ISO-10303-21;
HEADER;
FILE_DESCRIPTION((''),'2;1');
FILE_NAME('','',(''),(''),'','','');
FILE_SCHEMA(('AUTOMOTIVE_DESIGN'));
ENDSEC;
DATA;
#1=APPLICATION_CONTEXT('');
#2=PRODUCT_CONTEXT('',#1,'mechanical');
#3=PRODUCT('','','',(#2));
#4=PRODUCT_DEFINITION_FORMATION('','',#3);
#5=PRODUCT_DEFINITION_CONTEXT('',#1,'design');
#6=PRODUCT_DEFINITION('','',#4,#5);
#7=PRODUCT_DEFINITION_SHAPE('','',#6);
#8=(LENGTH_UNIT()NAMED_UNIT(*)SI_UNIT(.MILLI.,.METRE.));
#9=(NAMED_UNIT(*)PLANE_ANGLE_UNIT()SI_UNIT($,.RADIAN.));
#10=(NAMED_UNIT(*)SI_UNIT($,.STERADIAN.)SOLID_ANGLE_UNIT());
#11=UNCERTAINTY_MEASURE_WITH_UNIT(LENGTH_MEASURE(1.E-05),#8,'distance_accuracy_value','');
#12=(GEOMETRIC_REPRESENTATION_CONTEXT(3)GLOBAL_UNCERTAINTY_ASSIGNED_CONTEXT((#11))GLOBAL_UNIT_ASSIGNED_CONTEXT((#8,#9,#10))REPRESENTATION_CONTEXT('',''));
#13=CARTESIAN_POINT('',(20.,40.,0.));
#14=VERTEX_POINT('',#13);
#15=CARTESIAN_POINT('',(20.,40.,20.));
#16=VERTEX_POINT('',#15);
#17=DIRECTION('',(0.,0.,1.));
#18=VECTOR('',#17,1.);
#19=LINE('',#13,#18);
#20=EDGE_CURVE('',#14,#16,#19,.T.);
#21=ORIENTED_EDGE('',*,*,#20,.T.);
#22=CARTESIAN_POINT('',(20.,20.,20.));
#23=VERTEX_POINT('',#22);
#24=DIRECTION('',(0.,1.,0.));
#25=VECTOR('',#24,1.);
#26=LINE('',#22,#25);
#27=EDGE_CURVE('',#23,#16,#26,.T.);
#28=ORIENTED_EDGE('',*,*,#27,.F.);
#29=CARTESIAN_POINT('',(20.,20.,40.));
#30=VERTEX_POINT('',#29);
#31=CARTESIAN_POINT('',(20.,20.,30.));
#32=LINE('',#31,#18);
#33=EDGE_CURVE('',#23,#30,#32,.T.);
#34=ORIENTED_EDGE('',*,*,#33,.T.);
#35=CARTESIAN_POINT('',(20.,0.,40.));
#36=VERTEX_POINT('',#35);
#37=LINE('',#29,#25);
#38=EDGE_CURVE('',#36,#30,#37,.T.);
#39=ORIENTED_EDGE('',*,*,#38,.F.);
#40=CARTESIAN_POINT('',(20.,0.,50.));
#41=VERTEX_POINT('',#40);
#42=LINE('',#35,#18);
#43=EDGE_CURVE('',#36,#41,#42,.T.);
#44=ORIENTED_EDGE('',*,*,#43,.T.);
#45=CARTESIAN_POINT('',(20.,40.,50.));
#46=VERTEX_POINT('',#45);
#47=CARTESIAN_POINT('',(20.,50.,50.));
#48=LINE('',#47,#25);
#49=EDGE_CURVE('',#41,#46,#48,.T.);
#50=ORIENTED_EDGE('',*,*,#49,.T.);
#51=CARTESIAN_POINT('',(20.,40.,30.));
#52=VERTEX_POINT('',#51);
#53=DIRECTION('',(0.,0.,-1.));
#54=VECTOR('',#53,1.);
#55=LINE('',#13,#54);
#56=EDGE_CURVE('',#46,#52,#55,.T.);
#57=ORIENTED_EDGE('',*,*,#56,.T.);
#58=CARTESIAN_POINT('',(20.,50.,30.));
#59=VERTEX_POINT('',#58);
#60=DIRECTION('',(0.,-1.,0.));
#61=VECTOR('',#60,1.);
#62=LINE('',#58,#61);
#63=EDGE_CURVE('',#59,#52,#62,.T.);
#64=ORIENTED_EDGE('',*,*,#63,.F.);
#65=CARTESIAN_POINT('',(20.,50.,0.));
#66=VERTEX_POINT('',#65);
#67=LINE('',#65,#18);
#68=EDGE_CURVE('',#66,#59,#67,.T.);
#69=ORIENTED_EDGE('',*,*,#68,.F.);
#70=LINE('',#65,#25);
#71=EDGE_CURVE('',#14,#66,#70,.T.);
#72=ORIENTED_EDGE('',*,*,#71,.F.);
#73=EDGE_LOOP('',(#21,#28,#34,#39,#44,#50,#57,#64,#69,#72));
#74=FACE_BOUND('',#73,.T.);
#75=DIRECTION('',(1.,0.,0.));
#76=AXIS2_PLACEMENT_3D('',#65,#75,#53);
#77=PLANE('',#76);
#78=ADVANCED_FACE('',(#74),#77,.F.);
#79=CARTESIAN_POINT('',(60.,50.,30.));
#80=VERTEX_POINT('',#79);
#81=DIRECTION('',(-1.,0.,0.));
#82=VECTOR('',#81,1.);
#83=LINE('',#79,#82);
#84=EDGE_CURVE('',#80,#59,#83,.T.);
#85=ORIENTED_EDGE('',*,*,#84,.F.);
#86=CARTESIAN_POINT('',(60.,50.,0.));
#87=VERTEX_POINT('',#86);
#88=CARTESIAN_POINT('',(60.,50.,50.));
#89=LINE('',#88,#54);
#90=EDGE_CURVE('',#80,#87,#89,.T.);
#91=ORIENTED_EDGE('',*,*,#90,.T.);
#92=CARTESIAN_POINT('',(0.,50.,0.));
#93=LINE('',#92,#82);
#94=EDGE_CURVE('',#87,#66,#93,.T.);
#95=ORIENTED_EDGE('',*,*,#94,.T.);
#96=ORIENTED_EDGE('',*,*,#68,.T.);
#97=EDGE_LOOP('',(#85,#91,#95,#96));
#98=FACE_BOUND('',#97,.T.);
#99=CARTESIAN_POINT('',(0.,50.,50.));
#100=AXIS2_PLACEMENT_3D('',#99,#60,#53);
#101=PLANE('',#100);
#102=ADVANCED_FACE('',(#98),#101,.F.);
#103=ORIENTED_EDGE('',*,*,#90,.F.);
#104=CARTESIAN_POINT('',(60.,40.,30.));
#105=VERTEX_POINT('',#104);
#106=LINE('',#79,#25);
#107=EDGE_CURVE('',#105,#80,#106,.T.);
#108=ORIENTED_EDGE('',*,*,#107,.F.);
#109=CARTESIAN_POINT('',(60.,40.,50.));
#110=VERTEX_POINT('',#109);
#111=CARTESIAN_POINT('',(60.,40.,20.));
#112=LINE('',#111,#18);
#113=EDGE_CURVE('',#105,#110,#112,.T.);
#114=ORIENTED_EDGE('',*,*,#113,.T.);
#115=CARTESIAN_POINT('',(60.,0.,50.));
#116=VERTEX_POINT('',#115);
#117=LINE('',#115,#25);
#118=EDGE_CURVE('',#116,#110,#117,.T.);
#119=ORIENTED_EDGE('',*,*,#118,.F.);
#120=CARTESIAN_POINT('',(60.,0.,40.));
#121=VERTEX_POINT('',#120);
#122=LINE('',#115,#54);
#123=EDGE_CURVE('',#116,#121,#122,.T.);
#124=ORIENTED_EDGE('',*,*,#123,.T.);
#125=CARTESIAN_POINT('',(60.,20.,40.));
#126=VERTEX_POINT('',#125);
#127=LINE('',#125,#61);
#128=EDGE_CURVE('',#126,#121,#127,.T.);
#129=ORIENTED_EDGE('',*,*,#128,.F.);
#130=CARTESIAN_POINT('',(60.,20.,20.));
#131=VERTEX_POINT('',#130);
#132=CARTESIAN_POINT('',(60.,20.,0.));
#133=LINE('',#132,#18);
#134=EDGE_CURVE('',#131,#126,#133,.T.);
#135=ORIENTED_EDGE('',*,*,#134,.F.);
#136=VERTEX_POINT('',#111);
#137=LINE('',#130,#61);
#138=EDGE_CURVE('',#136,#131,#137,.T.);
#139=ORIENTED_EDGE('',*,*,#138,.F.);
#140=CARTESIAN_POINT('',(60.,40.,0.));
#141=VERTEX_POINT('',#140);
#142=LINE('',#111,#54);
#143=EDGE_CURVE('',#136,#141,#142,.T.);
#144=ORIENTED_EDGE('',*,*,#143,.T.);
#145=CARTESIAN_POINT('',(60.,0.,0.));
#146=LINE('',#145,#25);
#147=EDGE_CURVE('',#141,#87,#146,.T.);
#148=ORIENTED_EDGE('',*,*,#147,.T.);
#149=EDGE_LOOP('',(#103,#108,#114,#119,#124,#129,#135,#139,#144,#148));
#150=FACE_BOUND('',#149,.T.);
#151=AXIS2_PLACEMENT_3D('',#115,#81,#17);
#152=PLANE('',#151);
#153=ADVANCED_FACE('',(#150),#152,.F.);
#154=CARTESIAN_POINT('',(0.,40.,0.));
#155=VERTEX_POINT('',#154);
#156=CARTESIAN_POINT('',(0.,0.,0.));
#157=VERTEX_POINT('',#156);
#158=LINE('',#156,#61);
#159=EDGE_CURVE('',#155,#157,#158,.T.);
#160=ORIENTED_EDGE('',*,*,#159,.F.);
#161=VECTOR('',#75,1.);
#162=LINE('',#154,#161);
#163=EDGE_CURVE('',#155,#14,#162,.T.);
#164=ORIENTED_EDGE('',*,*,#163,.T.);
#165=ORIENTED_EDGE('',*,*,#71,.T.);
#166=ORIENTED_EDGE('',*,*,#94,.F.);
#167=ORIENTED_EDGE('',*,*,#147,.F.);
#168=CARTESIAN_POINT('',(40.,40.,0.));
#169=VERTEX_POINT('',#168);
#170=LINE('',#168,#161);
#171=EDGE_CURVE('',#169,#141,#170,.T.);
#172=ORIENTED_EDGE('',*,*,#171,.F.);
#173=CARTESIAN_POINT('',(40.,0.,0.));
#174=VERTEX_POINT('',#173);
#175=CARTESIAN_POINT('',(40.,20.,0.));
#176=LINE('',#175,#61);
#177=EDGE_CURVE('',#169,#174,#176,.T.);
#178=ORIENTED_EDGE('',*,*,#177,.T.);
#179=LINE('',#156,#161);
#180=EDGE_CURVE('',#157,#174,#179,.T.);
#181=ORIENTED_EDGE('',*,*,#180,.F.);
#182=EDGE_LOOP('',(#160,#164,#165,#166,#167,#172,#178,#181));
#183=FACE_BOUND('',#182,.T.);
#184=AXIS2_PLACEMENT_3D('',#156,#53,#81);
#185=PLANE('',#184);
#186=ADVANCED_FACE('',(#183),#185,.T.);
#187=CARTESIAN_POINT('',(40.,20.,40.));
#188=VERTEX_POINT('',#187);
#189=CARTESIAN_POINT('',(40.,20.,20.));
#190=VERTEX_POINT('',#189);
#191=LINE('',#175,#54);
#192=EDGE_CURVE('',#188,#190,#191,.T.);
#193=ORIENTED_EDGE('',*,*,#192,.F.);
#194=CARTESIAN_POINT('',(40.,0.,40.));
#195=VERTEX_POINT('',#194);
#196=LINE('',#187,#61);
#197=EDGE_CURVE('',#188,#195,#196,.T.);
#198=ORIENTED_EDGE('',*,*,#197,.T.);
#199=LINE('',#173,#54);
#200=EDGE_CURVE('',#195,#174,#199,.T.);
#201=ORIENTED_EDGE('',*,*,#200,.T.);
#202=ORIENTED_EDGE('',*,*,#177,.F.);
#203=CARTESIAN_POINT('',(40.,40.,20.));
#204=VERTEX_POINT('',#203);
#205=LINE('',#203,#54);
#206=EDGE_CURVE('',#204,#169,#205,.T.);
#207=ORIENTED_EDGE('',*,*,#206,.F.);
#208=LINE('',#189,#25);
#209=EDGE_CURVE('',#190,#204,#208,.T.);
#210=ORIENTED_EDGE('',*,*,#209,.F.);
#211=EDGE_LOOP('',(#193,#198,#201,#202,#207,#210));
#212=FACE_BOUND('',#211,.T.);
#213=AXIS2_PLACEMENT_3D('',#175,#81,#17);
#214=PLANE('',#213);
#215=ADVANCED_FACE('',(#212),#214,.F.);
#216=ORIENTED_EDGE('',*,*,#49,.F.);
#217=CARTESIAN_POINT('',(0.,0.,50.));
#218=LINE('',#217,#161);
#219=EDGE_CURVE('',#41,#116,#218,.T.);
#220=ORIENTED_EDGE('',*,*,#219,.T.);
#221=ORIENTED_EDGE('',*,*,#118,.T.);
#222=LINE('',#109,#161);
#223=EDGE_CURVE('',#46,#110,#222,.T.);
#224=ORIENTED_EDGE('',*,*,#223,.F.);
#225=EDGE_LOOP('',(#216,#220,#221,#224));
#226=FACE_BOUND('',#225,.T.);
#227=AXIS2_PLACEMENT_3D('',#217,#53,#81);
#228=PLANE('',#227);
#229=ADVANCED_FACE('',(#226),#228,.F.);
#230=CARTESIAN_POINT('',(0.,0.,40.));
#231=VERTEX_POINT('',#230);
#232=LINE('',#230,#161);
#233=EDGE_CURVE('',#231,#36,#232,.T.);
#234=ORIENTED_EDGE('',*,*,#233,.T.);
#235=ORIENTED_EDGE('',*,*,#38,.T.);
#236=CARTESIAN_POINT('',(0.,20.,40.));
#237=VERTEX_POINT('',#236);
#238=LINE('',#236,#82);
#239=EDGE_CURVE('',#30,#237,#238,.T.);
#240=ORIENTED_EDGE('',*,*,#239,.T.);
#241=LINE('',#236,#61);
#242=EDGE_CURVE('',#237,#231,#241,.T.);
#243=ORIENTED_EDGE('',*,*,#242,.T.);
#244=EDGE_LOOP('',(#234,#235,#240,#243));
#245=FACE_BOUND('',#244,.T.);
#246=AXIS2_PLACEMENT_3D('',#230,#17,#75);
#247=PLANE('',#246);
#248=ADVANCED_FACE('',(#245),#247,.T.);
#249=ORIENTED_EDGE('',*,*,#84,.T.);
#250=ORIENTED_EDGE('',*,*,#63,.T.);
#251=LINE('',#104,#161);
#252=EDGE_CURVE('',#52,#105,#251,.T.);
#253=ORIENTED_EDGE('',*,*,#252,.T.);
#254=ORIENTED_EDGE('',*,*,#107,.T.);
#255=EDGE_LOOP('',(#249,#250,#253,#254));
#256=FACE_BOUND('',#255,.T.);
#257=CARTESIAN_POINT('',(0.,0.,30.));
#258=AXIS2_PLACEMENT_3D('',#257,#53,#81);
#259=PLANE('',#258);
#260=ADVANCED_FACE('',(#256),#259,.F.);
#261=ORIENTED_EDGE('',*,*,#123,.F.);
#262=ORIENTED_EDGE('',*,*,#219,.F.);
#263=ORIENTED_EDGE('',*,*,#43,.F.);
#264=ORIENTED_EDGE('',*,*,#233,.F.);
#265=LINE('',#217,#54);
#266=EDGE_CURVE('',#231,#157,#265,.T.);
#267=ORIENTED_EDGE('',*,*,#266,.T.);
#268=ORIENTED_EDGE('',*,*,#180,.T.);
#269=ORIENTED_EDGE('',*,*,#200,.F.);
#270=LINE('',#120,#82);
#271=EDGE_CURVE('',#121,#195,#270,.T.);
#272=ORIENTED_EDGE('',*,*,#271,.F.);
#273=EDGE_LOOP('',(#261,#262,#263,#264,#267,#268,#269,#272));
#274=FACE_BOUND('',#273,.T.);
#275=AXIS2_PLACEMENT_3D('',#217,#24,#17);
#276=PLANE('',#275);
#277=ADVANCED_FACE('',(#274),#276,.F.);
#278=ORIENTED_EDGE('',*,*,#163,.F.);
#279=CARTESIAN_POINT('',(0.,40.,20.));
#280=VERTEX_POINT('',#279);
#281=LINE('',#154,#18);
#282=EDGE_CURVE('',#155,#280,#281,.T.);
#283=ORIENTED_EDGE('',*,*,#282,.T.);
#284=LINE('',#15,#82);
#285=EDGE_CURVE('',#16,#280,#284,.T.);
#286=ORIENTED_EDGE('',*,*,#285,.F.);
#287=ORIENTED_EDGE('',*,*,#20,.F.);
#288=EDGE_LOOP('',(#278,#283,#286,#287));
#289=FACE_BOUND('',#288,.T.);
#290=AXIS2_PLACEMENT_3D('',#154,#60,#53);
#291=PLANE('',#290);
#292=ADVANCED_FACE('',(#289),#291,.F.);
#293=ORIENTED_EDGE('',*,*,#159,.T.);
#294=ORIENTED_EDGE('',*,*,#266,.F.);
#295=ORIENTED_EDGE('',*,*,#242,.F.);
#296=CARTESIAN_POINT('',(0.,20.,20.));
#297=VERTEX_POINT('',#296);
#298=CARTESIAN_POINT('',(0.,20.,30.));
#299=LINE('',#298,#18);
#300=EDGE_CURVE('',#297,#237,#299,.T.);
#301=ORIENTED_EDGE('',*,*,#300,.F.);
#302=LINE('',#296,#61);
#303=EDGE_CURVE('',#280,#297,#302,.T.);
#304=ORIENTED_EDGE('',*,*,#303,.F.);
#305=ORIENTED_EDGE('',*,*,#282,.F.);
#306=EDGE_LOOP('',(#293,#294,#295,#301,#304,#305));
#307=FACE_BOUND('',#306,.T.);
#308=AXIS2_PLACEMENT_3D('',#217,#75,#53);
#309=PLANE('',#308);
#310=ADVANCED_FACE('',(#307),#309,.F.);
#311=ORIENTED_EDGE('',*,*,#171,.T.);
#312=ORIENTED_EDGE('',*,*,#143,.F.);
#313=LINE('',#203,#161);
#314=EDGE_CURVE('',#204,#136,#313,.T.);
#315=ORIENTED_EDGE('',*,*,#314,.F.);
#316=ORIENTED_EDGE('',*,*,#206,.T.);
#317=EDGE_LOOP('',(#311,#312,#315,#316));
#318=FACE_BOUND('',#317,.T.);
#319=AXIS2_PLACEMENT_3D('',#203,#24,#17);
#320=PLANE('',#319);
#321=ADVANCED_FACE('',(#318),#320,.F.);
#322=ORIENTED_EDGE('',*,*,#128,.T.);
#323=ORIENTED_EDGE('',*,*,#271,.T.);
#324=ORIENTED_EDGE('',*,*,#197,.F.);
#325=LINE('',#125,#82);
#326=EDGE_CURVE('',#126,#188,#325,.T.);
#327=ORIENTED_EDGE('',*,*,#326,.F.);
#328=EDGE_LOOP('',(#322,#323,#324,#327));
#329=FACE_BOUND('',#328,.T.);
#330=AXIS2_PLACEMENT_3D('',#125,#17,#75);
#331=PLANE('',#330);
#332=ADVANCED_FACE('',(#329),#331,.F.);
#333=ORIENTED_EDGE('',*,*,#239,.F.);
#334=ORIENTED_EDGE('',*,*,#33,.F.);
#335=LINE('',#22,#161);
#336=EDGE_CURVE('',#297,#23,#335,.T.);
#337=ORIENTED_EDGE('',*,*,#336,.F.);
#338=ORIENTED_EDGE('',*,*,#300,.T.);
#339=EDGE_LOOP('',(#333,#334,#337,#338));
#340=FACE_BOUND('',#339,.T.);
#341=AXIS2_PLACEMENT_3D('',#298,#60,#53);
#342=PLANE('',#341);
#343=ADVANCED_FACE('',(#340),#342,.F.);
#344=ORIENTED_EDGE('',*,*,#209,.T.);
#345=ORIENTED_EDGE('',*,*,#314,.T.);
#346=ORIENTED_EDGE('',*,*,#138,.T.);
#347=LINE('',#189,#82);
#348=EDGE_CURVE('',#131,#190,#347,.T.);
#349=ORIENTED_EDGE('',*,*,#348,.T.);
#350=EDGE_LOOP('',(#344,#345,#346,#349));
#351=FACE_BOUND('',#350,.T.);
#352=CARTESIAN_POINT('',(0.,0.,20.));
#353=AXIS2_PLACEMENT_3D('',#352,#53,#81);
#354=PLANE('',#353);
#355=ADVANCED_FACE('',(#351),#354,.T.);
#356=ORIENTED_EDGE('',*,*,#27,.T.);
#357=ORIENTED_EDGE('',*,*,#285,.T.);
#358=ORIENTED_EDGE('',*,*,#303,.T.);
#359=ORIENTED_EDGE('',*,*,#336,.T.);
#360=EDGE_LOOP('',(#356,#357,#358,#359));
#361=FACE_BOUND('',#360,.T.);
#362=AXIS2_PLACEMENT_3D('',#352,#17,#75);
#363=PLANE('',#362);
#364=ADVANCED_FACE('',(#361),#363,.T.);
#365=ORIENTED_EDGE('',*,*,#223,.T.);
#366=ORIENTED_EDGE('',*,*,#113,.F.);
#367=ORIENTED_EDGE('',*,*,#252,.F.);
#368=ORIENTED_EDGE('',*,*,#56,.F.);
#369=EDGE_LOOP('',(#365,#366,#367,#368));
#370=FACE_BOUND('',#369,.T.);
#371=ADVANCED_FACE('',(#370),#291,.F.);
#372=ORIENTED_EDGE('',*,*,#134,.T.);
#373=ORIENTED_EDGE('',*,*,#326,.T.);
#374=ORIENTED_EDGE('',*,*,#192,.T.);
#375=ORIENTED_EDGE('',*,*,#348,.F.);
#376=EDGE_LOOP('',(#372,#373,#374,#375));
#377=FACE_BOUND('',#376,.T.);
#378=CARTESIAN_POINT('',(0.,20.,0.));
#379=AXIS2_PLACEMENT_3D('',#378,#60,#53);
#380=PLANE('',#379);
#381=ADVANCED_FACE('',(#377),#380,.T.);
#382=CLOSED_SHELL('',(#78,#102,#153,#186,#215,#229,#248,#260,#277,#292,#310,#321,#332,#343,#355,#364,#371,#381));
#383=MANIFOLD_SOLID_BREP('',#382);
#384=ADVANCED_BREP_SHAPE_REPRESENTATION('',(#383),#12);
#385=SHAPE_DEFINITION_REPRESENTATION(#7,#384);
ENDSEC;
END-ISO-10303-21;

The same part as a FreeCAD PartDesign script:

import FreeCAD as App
import Part
import Sketcher


def add_polygon(sketch, points):
    """Adds a closed chain of lines whose ends are joined by coincident constraints."""
    first, n = sketch.GeometryCount, len(points)
    for a, b in zip(points, points[1:] + points[:1]):
        sketch.addGeometry(Part.LineSegment(App.Vector(*a, 0), App.Vector(*b, 0)), False)
    for i in range(n):
        sketch.addConstraint(Sketcher.Constraint("Coincident", first + i, 2, first + (i + 1) % n, 1))

doc = App.newDocument("Part")
body = doc.addObject("PartDesign::Body", "Body")

sketch1 = doc.addObject("Sketcher::SketchObject", "Sketch")
body.addObject(sketch1)
sketch1.AttachmentSupport = (doc.XY_Plane, [""])
sketch1.MapMode = "FlatFace"
add_polygon(sketch1, [(0, 50), (0, 0), (60, 0), (60, 50)])
sketch1.addConstraint(Sketcher.Constraint("Vertical", 0))
sketch1.addConstraint(Sketcher.Constraint("Horizontal", 1))
sketch1.addConstraint(Sketcher.Constraint("Vertical", 2))
sketch1.addConstraint(Sketcher.Constraint("Horizontal", 3))
sketch1.addConstraint(Sketcher.Constraint("Coincident", 0, 2, -1, 1))
sketch1.addConstraint(Sketcher.Constraint("DistanceX", 1, 1, 1, 2, 60.0))
sketch1.addConstraint(Sketcher.Constraint("DistanceY", 0, 2, 0, 1, 50.0))
pad1 = doc.addObject("PartDesign::Pad", "Pad")
body.addObject(pad1)
pad1.Profile = sketch1
pad1.Length = 50

sketch2 = doc.addObject("Sketcher::SketchObject", "Sketch001")
body.addObject(sketch2)
sketch2.AttachmentSupport = (doc.XY_Plane, [""])
sketch2.MapMode = "FlatFace"
sketch2.AttachmentOffset = App.Placement(App.Vector(0, 0, 50), App.Rotation())
add_polygon(sketch2, [(0, 50), (0, 40), (20, 40), (20, 50)])
sketch2.addConstraint(Sketcher.Constraint("Vertical", 0))
sketch2.addConstraint(Sketcher.Constraint("Horizontal", 1))
sketch2.addConstraint(Sketcher.Constraint("Vertical", 2))
sketch2.addConstraint(Sketcher.Constraint("Horizontal", 3))
sketch2.addConstraint(Sketcher.Constraint("PointOnObject", 0, 2, -2))
sketch2.addConstraint(Sketcher.Constraint("DistanceX", 1, 1, 1, 2, 20.0))
sketch2.addConstraint(Sketcher.Constraint("DistanceY", 0, 2, 0, 1, 10.0))
sketch2.addConstraint(Sketcher.Constraint("DistanceY", -1, 1, 0, 2, 40.0))
pocket1 = doc.addObject("PartDesign::Pocket", "Pocket")
body.addObject(pocket1)
pocket1.Profile = sketch2
pocket1.Length = 50

sketch3 = doc.addObject("Sketcher::SketchObject", "Sketch002")
body.addObject(sketch3)
sketch3.AttachmentSupport = (doc.XY_Plane, [""])
sketch3.MapMode = "FlatFace"
sketch3.AttachmentOffset = App.Placement(App.Vector(0, 0, 50), App.Rotation())
add_polygon(sketch3, [(0, 40), (0, 20), (20, 20), (20, 40)])
sketch3.addConstraint(Sketcher.Constraint("Vertical", 0))
sketch3.addConstraint(Sketcher.Constraint("Horizontal", 1))
sketch3.addConstraint(Sketcher.Constraint("Vertical", 2))
sketch3.addConstraint(Sketcher.Constraint("Horizontal", 3))
sketch3.addConstraint(Sketcher.Constraint("PointOnObject", 0, 2, -2))
sketch3.addConstraint(Sketcher.Constraint("Equal", 3, 0))
sketch3.addConstraint(Sketcher.Constraint("DistanceX", 1, 1, 1, 2, 20.0))
sketch3.addConstraint(Sketcher.Constraint("DistanceY", -1, 1, 0, 2, 20.0))
pocket2 = doc.addObject("PartDesign::Pocket", "Pocket001")
body.addObject(pocket2)
pocket2.Profile = sketch3
pocket2.Length = 20

sketch4 = doc.addObject("Sketcher::SketchObject", "Sketch003")
body.addObject(sketch4)
sketch4.AttachmentSupport = (doc.XY_Plane, [""])
sketch4.MapMode = "FlatFace"
sketch4.AttachmentOffset = App.Placement(App.Vector(0, 0, 50), App.Rotation())
add_polygon(sketch4, [(20, 50), (20, 40), (60, 40), (60, 50)])
sketch4.addConstraint(Sketcher.Constraint("Vertical", 0))
sketch4.addConstraint(Sketcher.Constraint("Horizontal", 1))
sketch4.addConstraint(Sketcher.Constraint("Vertical", 2))
sketch4.addConstraint(Sketcher.Constraint("Horizontal", 3))
sketch4.addConstraint(Sketcher.Constraint("DistanceX", 1, 1, 1, 2, 40.0))
sketch4.addConstraint(Sketcher.Constraint("DistanceY", 0, 2, 0, 1, 10.0))
sketch4.addConstraint(Sketcher.Constraint("DistanceX", -1, 1, 0, 2, 20.0))
sketch4.addConstraint(Sketcher.Constraint("DistanceY", -1, 1, 0, 2, 40.0))
pocket3 = doc.addObject("PartDesign::Pocket", "Pocket002")
body.addObject(pocket3)
pocket3.Profile = sketch4
pocket3.Length = 30

sketch5 = doc.addObject("Sketcher::SketchObject", "Sketch004")
body.addObject(sketch5)
sketch5.AttachmentSupport = (doc.XY_Plane, [""])
sketch5.MapMode = "FlatFace"
sketch5.AttachmentOffset = App.Placement(App.Vector(0, 0, 30), App.Rotation())
add_polygon(sketch5, [(0, 40), (0, 20), (20, 20), (20, 40)])
sketch5.addConstraint(Sketcher.Constraint("Vertical", 0))
sketch5.addConstraint(Sketcher.Constraint("Horizontal", 1))
sketch5.addConstraint(Sketcher.Constraint("Vertical", 2))
sketch5.addConstraint(Sketcher.Constraint("Horizontal", 3))
sketch5.addConstraint(Sketcher.Constraint("PointOnObject", 0, 2, -2))
sketch5.addConstraint(Sketcher.Constraint("Equal", 3, 0))
sketch5.addConstraint(Sketcher.Constraint("DistanceX", 1, 1, 1, 2, 20.0))
sketch5.addConstraint(Sketcher.Constraint("DistanceY", -1, 1, 0, 2, 20.0))
pocket4 = doc.addObject("PartDesign::Pocket", "Pocket003")
body.addObject(pocket4)
pocket4.Profile = sketch5
pocket4.Length = 10

sketch6 = doc.addObject("Sketcher::SketchObject", "Sketch005")
body.addObject(sketch6)
sketch6.AttachmentSupport = (doc.XY_Plane, [""])
sketch6.MapMode = "FlatFace"
sketch6.AttachmentOffset = App.Placement(App.Vector(0, 0, 50), App.Rotation())
add_polygon(sketch6, [(0, 20), (0, 0), (20, 0), (20, 20)])
sketch6.addConstraint(Sketcher.Constraint("Vertical", 0))
sketch6.addConstraint(Sketcher.Constraint("Horizontal", 1))
sketch6.addConstraint(Sketcher.Constraint("Vertical", 2))
sketch6.addConstraint(Sketcher.Constraint("Horizontal", 3))
sketch6.addConstraint(Sketcher.Constraint("Coincident", 0, 2, -1, 1))
sketch6.addConstraint(Sketcher.Constraint("Equal", 3, 0))
sketch6.addConstraint(Sketcher.Constraint("DistanceX", 1, 1, 1, 2, 20.0))
pocket5 = doc.addObject("PartDesign::Pocket", "Pocket004")
body.addObject(pocket5)
pocket5.Profile = sketch6
pocket5.Length = 10

sketch7 = doc.addObject("Sketcher::SketchObject", "Sketch006")
body.addObject(sketch7)
sketch7.AttachmentSupport = (doc.XY_Plane, [""])
sketch7.MapMode = "FlatFace"
sketch7.AttachmentOffset = App.Placement(App.Vector(0, 0, 20), App.Rotation())
add_polygon(sketch7, [(20, 50), (20, 40), (60, 40), (60, 50)])
sketch7.addConstraint(Sketcher.Constraint("Vertical", 0))
sketch7.addConstraint(Sketcher.Constraint("Horizontal", 1))
sketch7.addConstraint(Sketcher.Constraint("Vertical", 2))
sketch7.addConstraint(Sketcher.Constraint("Horizontal", 3))
sketch7.addConstraint(Sketcher.Constraint("DistanceX", 1, 1, 1, 2, 40.0))
sketch7.addConstraint(Sketcher.Constraint("DistanceY", 0, 2, 0, 1, 10.0))
sketch7.addConstraint(Sketcher.Constraint("DistanceX", -1, 1, 0, 2, 20.0))
sketch7.addConstraint(Sketcher.Constraint("DistanceY", -1, 1, 0, 2, 40.0))
pad2 = doc.addObject("PartDesign::Pad", "Pad001")
body.addObject(pad2)
pad2.Profile = sketch7
pad2.Length = 10

sketch8 = doc.addObject("Sketcher::SketchObject", "Sketch007")
body.addObject(sketch8)
sketch8.AttachmentSupport = (doc.XZ_Plane, [""])
sketch8.MapMode = "FlatFace"
add_polygon(sketch8, [(60, 0), (60, 40), (40, 40), (40, 0)])
sketch8.addConstraint(Sketcher.Constraint("Vertical", 0))
sketch8.addConstraint(Sketcher.Constraint("Horizontal", 1))
sketch8.addConstraint(Sketcher.Constraint("Vertical", 2))
sketch8.addConstraint(Sketcher.Constraint("Horizontal", 3))
sketch8.addConstraint(Sketcher.Constraint("PointOnObject", 2, 2, -1))
sketch8.addConstraint(Sketcher.Constraint("DistanceX", 1, 2, 1, 1, 20.0))
sketch8.addConstraint(Sketcher.Constraint("DistanceY", 0, 1, 0, 2, 40.0))
sketch8.addConstraint(Sketcher.Constraint("DistanceX", -1, 1, 0, 2, 60.0))
pocket6 = doc.addObject("PartDesign::Pocket", "Pocket005")
body.addObject(pocket6)
pocket6.Profile = sketch8
pocket6.Length = 20

sketch9 = doc.addObject("Sketcher::SketchObject", "Sketch008")
body.addObject(sketch9)
sketch9.AttachmentSupport = (doc.XY_Plane, [""])
sketch9.MapMode = "FlatFace"
add_polygon(sketch9, [(60, 40), (60, 20), (40, 20), (40, 40)])
sketch9.addConstraint(Sketcher.Constraint("Vertical", 0))
sketch9.addConstraint(Sketcher.Constraint("Horizontal", 1))
sketch9.addConstraint(Sketcher.Constraint("Vertical", 2))
sketch9.addConstraint(Sketcher.Constraint("Horizontal", 3))
sketch9.addConstraint(Sketcher.Constraint("Equal", 3, 0))
sketch9.addConstraint(Sketcher.Constraint("DistanceX", 1, 2, 1, 1, 20.0))
sketch9.addConstraint(Sketcher.Constraint("DistanceX", -1, 1, 0, 2, 60.0))
sketch9.addConstraint(Sketcher.Constraint("DistanceY", -1, 1, 0, 2, 20.0))
pocket7 = doc.addObject("PartDesign::Pocket", "Pocket006")
body.addObject(pocket7)
pocket7.Profile = sketch9
pocket7.Length = 20
pocket7.Reversed = True

doc.recompute()
